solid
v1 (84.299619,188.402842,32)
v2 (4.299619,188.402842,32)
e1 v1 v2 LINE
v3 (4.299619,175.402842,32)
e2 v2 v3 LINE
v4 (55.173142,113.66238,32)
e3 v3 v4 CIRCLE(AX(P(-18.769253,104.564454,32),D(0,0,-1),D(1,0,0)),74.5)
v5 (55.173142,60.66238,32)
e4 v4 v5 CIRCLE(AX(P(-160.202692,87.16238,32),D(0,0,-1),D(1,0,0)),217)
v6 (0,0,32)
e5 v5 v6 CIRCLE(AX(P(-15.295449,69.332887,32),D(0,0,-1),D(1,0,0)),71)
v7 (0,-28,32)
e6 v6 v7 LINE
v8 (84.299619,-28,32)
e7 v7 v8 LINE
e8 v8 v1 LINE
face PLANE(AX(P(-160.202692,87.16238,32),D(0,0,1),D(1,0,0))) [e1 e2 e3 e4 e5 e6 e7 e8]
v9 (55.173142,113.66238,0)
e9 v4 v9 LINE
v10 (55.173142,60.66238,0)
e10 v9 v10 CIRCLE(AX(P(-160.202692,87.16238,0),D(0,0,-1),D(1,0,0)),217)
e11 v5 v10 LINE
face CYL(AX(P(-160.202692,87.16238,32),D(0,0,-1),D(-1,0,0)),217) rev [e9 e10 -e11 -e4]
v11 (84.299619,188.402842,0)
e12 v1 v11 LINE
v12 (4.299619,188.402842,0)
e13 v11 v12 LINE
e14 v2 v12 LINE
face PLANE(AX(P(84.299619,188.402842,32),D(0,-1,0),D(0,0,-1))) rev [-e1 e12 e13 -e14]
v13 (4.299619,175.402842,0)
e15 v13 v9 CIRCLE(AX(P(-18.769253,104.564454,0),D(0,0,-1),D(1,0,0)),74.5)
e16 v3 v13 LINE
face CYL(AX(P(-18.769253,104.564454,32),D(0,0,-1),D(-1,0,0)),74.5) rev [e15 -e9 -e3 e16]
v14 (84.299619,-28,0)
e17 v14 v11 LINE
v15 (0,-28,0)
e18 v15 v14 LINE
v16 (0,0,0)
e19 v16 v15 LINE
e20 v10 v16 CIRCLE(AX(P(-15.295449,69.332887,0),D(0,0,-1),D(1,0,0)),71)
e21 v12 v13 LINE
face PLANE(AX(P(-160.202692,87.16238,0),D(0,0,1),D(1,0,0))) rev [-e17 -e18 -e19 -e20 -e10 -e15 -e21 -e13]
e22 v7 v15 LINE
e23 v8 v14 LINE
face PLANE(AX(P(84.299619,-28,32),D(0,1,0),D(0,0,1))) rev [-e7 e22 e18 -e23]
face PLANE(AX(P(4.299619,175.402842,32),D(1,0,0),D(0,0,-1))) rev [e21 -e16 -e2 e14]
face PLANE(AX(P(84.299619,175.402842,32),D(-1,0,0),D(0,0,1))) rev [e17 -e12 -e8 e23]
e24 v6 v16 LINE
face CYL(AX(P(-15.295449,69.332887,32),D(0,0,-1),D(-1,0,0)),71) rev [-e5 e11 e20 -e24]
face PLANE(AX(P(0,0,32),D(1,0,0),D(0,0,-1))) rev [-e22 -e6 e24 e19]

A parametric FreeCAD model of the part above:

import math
import FreeCAD as App
import Part
import Sketcher
from FreeCAD import Vector

doc = App.newDocument("Part")
body = doc.addObject("PartDesign::Body", "Body")

# Sketch on XY plane
sketch1 = doc.addObject("Sketcher::SketchObject", "Sketch")
body.addObject(sketch1)
sketch1.AttachmentSupport = (doc.XY_Plane, [""])
sketch1.MapMode = "FlatFace"
sketch1.addGeometry(Part.LineSegment(Vector(4.299619, 188.402842, 0), Vector(4.299619, 175.402842, 0)), False)
sketch1.addGeometry(Part.ArcOfCircle(Part.Circle(Vector(-18.769253, 104.564454, 0), Vector(0, 0, 1), 74.5), math.radians(7.014459), math.radians(71.961904)), False)
sketch1.addGeometry(Part.ArcOfCircle(Part.Circle(Vector(-160.202692, 87.16238, 0), Vector(0, 0, 1), 217), math.radians(-7.014459), math.radians(7.014459)), False)
sketch1.addGeometry(Part.ArcOfCircle(Part.Circle(Vector(-15.295449, 69.332887, 0), Vector(0, 0, 1), 71), math.radians(-77.559311), math.radians(-7.014459)), False)
sketch1.addGeometry(Part.LineSegment(Vector(0, 0, 0), Vector(0, -28, 0)), False)
sketch1.addGeometry(Part.LineSegment(Vector(0, -28, 0), Vector(84.299619, -28, 0)), False)
sketch1.addGeometry(Part.LineSegment(Vector(84.299619, -28, 0), Vector(84.299619, 188.402842, 0)), False)
sketch1.addGeometry(Part.LineSegment(Vector(84.299619, 188.402842, 0), Vector(4.299619, 188.402842, 0)), False)
sketch1.addConstraint(Sketcher.Constraint("Coincident", 0, 2, 1, 2))
sketch1.addConstraint(Sketcher.Constraint("Tangent", 1, 1, 2, 2))
sketch1.addConstraint(Sketcher.Constraint("Tangent", 2, 1, 3, 2))
sketch1.addConstraint(Sketcher.Constraint("Coincident", 3, 1, 4, 1))
sketch1.addConstraint(Sketcher.Constraint("Coincident", 4, 2, 5, 1))
sketch1.addConstraint(Sketcher.Constraint("Coincident", 5, 2, 6, 1))
sketch1.addConstraint(Sketcher.Constraint("Coincident", 6, 2, 7, 1))
sketch1.addConstraint(Sketcher.Constraint("Coincident", 7, 2, 0, 1))
sketch1.addConstraint(Sketcher.Constraint("Vertical", 0))
sketch1.addConstraint(Sketcher.Constraint("Vertical", 4))
sketch1.addConstraint(Sketcher.Constraint("Horizontal", 5))
sketch1.addConstraint(Sketcher.Constraint("Vertical", 6))
sketch1.addConstraint(Sketcher.Constraint("Horizontal", 7))
sketch1.addConstraint(Sketcher.Constraint("Coincident", 3, 1, -1, 1))
sketch1.addConstraint(Sketcher.Constraint("Vertical", 1, 1, 2, 1))
sketch1.addConstraint(Sketcher.Constraint("Radius", 2, 217.0))
sketch1.addConstraint(Sketcher.Constraint("Radius", 3, 71.0))
sketch1.addConstraint(Sketcher.Constraint("Radius", 1, 74.5))
sketch1.addConstraint(Sketcher.Constraint("DistanceX", 7, 2, 7, 1, 80.0))
sketch1.addConstraint(Sketcher.Constraint("DistanceY", 0, 2, 0, 1, 13.0))
sketch1.addConstraint(Sketcher.Constraint("DistanceY", 4, 2, 4, 1, 28.0))
sketch1.addConstraint(Sketcher.Constraint("DistanceY", 2, 1, 1, 1, 53.0))
sketch1.addConstraint(Sketcher.Constraint("DistanceX", 5, 1, 5, 2, 84.299619))
sketch1.addConstraint(Sketcher.Constraint("DistanceY", 6, 1, 6, 2, 216.402842))
pad1 = doc.addObject("PartDesign::Pad", "Pad")
body.addObject(pad1)
pad1.Profile = sketch1
pad1.Length = 32

doc.recompute()
